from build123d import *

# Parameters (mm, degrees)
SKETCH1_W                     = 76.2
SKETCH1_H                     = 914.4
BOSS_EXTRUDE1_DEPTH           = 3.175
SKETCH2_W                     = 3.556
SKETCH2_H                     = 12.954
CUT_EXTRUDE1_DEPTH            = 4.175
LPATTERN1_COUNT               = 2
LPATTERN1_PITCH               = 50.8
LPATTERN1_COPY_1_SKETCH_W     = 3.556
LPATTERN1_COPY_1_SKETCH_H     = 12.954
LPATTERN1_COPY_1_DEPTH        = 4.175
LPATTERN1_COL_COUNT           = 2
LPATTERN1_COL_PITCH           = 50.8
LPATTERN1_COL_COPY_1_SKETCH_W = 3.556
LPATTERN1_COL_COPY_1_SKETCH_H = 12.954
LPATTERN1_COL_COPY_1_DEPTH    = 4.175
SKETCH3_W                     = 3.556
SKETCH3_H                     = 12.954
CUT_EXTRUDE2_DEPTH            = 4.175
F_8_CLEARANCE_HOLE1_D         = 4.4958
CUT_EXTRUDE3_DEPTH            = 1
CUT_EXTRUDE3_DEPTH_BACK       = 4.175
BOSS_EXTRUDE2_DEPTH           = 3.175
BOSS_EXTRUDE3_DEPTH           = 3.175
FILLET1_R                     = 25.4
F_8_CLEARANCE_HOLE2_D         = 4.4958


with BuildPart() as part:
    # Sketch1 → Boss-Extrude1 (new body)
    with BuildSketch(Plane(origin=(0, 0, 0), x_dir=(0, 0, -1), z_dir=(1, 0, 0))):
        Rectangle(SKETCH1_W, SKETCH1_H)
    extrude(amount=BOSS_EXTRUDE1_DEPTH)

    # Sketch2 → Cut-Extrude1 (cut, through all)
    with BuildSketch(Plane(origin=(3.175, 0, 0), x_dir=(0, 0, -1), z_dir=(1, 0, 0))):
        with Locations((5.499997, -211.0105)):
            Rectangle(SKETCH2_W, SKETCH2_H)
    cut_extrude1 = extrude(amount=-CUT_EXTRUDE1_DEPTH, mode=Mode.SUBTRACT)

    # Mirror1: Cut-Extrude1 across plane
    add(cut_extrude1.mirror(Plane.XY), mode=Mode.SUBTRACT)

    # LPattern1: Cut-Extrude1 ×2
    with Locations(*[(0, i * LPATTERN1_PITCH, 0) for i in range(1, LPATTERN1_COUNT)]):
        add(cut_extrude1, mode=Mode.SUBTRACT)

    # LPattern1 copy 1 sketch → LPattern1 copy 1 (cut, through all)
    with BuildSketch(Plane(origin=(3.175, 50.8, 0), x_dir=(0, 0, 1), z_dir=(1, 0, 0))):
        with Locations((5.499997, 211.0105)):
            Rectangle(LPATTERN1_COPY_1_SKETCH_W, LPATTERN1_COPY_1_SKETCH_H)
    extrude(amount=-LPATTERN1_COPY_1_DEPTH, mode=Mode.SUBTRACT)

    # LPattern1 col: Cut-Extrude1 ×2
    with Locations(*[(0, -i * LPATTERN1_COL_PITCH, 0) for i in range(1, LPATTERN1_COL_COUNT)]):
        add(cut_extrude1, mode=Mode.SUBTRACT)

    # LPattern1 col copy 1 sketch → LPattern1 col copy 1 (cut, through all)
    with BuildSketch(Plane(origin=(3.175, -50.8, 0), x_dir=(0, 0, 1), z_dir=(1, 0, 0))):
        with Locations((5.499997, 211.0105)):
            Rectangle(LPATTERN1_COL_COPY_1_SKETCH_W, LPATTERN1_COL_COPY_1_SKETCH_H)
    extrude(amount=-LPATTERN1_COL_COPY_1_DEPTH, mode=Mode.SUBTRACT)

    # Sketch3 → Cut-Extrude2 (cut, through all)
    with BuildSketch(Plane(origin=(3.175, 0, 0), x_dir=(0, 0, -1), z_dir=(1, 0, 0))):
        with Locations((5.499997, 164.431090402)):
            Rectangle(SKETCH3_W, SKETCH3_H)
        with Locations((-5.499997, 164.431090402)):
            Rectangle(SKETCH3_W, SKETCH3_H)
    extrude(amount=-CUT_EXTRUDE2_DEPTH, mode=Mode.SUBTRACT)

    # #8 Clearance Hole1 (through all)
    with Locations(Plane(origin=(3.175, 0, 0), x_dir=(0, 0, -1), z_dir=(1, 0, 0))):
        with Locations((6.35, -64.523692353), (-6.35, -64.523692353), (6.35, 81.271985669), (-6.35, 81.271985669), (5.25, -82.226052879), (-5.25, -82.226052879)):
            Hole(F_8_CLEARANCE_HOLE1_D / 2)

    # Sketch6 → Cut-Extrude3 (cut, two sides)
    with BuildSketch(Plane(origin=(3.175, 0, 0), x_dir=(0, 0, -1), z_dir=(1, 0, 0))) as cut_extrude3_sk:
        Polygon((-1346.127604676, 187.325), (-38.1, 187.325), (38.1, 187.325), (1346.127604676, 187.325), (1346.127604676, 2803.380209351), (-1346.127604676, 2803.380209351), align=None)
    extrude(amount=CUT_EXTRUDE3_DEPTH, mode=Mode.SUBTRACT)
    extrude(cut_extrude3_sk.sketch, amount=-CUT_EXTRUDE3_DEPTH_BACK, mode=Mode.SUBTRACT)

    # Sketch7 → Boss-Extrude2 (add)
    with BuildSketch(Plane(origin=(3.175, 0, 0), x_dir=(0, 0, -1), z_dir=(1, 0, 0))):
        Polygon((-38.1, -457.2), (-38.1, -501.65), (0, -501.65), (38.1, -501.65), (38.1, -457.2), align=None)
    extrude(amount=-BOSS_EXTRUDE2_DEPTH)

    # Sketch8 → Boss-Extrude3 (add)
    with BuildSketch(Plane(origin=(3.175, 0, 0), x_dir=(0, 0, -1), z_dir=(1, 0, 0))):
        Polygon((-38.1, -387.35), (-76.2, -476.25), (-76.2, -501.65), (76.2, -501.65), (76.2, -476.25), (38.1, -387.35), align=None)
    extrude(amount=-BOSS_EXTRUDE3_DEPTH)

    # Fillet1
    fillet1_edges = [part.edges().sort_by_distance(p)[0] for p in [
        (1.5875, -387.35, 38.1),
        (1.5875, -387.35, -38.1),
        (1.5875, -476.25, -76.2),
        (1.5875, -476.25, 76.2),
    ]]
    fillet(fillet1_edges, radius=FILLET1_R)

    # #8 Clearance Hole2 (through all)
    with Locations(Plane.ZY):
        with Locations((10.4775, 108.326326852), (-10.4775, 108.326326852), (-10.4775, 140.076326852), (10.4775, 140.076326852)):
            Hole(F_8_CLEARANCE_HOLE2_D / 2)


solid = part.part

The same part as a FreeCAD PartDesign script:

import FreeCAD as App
import Part
import Sketcher
Q = App.Units.Quantity


def edges_at(feature, points):
    """Names of the edges that pass closest to the given points."""
    edges = feature.Shape.Edges
    near = lambda p: min(range(len(edges)), key=lambda i: edges[i].distToShape(Part.Vertex(*p))[0])
    return sorted({f"Edge{near(p) + 1}" for p in points})

doc = App.newDocument("Part")
body = doc.addObject("PartDesign::Body", "Body")

sketch1 = doc.addObject("Sketcher::SketchObject", "Sketch")
body.addObject(sketch1)
sketch1.AttachmentSupport = (doc.YZ_Plane, [""])
sketch1.MapMode = "FlatFace"
sketch1.addGeometry([
    Part.LineSegment(App.Vector(457.2, 38.1, 0), App.Vector(-457.2, 38.1, 0)),
    Part.LineSegment(App.Vector(-457.2, 38.1, 0), App.Vector(-457.2, -38.1, 0)),
    Part.LineSegment(App.Vector(-457.2, -38.1, 0), App.Vector(457.2, -38.1, 0)),
    Part.LineSegment(App.Vector(457.2, -38.1, 0), App.Vector(457.2, 38.1, 0)),
], False)
sketch1.addConstraint([
    Sketcher.Constraint("Coincident", 0, 2, 1, 1),
    Sketcher.Constraint("Coincident", 1, 2, 2, 1),
    Sketcher.Constraint("Coincident", 2, 2, 3, 1),
    Sketcher.Constraint("Coincident", 3, 2, 0, 1),
    Sketcher.Constraint("Horizontal", 0),
    Sketcher.Constraint("Vertical", 1),
    Sketcher.Constraint("Horizontal", 2),
    Sketcher.Constraint("Vertical", 3),
    Sketcher.Constraint("Symmetric", 0, 2, 2, 2, -1, 1),
    Sketcher.Constraint("DistanceX", 0, 2, 0, 1, Q("36 in")),
    Sketcher.Constraint("DistanceY", 1, 2, 1, 1, Q("3 in")),
])
pad1 = doc.addObject("PartDesign::Pad", "Pad")
body.addObject(pad1)
pad1.Profile = sketch1
pad1.Length = Q("0.125 in")

sketch2 = doc.addObject("Sketcher::SketchObject", "Sketch001")
body.addObject(sketch2)
sketch2.AttachmentSupport = (doc.YZ_Plane, [""])
sketch2.MapMode = "FlatFace"
sketch2.AttachmentOffset = App.Placement(App.Vector(0, 0, 0.125 * 25.4), App.Rotation())
sketch2.addGeometry([
    Part.LineSegment(App.Vector(-204.5335, -3.721997, 0), App.Vector(-217.4875, -3.721997, 0)),
    Part.LineSegment(App.Vector(-217.4875, -3.721997, 0), App.Vector(-217.4875, -7.277997, 0)),
    Part.LineSegment(App.Vector(-217.4875, -7.277997, 0), App.Vector(-204.5335, -7.277997, 0)),
    Part.LineSegment(App.Vector(-204.5335, -7.277997, 0), App.Vector(-204.5335, -3.721997, 0)),
], False)
sketch2.addConstraint([
    Sketcher.Constraint("Coincident", 0, 2, 1, 1),
    Sketcher.Constraint("Coincident", 1, 2, 2, 1),
    Sketcher.Constraint("Coincident", 2, 2, 3, 1),
    Sketcher.Constraint("Coincident", 3, 2, 0, 1),
    Sketcher.Constraint("Horizontal", 0),
    Sketcher.Constraint("Vertical", 1),
    Sketcher.Constraint("Horizontal", 2),
    Sketcher.Constraint("Vertical", 3),
    Sketcher.Constraint("DistanceX", 0, 2, 0, 1, Q("0.51 in")),
    Sketcher.Constraint("DistanceY", 1, 2, 1, 1, Q("0.14 in")),
    Sketcher.Constraint("DistanceX", 0, 2, -1, 1, Q("8.5625 in")),
    Sketcher.Constraint("DistanceY", 0, 2, -1, 1, 3.721997),
])
pocket1 = doc.addObject("PartDesign::Pocket", "Pocket")
body.addObject(pocket1)
pocket1.Profile = sketch2
pocket1.Type = "ThroughAll"
doc.recompute()

mirrored = doc.addObject("PartDesign::Mirrored", "Mirrored")
body.addObject(mirrored)
mirrored.Originals = [pocket1]
mirrored.MirrorPlane = (doc.XY_Plane, [""])
body.Tip = mirrored
doc.recompute()

linearpattern = doc.addObject("PartDesign::LinearPattern", "LinearPattern")
body.addObject(linearpattern)
linearpattern.Originals = [pocket1]
linearpattern.Direction = (doc.Y_Axis, [""])
linearpattern.Mode = "offset"
linearpattern.Offset = Q("2 in")
linearpattern.Occurrences = 2
body.Tip = linearpattern

sketch3 = doc.addObject("Sketcher::SketchObject", "Sketch002")
body.addObject(sketch3)
sketch3.AttachmentSupport = (doc.YZ_Plane, [""])
sketch3.MapMode = "FlatFace"
sketch3.AttachmentOffset = App.Placement(App.Vector(0, 0, 0.125 * 25.4), App.Rotation())
sketch3.addGeometry([
    Part.LineSegment(App.Vector(-166.6875, 3.721997, 0), App.Vector(-153.7335, 3.721997, 0)),
    Part.LineSegment(App.Vector(-153.7335, 3.721997, 0), App.Vector(-153.7335, 7.277997, 0)),
    Part.LineSegment(App.Vector(-153.7335, 7.277997, 0), App.Vector(-166.6875, 7.277997, 0)),
    Part.LineSegment(App.Vector(-166.6875, 7.277997, 0), App.Vector(-166.6875, 3.721997, 0)),
], False)
sketch3.addConstraint([
    Sketcher.Constraint("Coincident", 0, 2, 1, 1),
    Sketcher.Constraint("Coincident", 1, 2, 2, 1),
    Sketcher.Constraint("Coincident", 2, 2, 3, 1),
    Sketcher.Constraint("Coincident", 3, 2, 0, 1),
    Sketcher.Constraint("Horizontal", 0),
    Sketcher.Constraint("Vertical", 1),
    Sketcher.Constraint("Horizontal", 2),
    Sketcher.Constraint("Vertical", 3),
    Sketcher.Constraint("DistanceX", 0, 1, 0, 2, Q("0.51 in")),
    Sketcher.Constraint("DistanceY", 1, 1, 1, 2, Q("0.14 in")),
    Sketcher.Constraint("DistanceX", 2, 2, -1, 1, Q("6.5625 in")),
    Sketcher.Constraint("DistanceY", -1, 1, 0, 2, 3.721997),
])
pocket2 = doc.addObject("PartDesign::Pocket", "Pocket001")
body.addObject(pocket2)
pocket2.Profile = sketch3
pocket2.Type = "ThroughAll"
doc.recompute()

linearpattern2 = doc.addObject("PartDesign::LinearPattern", "LinearPattern001")
body.addObject(linearpattern2)
linearpattern2.Originals = [pocket1]
linearpattern2.Direction = (doc.Y_Axis, [""])
linearpattern2.Mode = "offset"
linearpattern2.Offset = Q("2 in")
linearpattern2.Occurrences = 2
linearpattern2.Reversed = True
body.Tip = linearpattern2

sketch4 = doc.addObject("Sketcher::SketchObject", "Sketch003")
body.addObject(sketch4)
sketch4.AttachmentSupport = (doc.YZ_Plane, [""])
sketch4.MapMode = "FlatFace"
sketch4.AttachmentOffset = App.Placement(App.Vector(0, 0, 0.125 * 25.4), App.Rotation())
sketch4.addGeometry([
    Part.LineSegment(App.Vector(-268.2875, 3.721997, 0), App.Vector(-255.3335, 3.721997, 0)),
    Part.LineSegment(App.Vector(-255.3335, 3.721997, 0), App.Vector(-255.3335, 7.277997, 0)),
    Part.LineSegment(App.Vector(-255.3335, 7.277997, 0), App.Vector(-268.2875, 7.277997, 0)),
    Part.LineSegment(App.Vector(-268.2875, 7.277997, 0), App.Vector(-268.2875, 3.721997, 0)),
], False)
sketch4.addConstraint([
    Sketcher.Constraint("Coincident", 0, 2, 1, 1),
    Sketcher.Constraint("Coincident", 1, 2, 2, 1),
    Sketcher.Constraint("Coincident", 2, 2, 3, 1),
    Sketcher.Constraint("Coincident", 3, 2, 0, 1),
    Sketcher.Constraint("Horizontal", 0),
    Sketcher.Constraint("Vertical", 1),
    Sketcher.Constraint("Horizontal", 2),
    Sketcher.Constraint("Vertical", 3),
    Sketcher.Constraint("DistanceX", 0, 1, 0, 2, Q("0.51 in")),
    Sketcher.Constraint("DistanceY", 1, 1, 1, 2, Q("0.14 in")),
    Sketcher.Constraint("DistanceX", 2, 2, -1, 1, Q("10.5625 in")),
    Sketcher.Constraint("DistanceY", -1, 1, 0, 2, 3.721997),
])
pocket3 = doc.addObject("PartDesign::Pocket", "Pocket002")
body.addObject(pocket3)
pocket3.Profile = sketch4
pocket3.Type = "ThroughAll"

sketch5 = doc.addObject("Sketcher::SketchObject", "Sketch004")
body.addObject(sketch5)
sketch5.AttachmentSupport = (doc.YZ_Plane, [""])
sketch5.MapMode = "FlatFace"
sketch5.AttachmentOffset = App.Placement(App.Vector(0, 0, 0.125 * 25.4), App.Rotation())
sketch5.addGeometry([
    Part.LineSegment(App.Vector(170.90809, -3.721997, 0), App.Vector(157.95409, -3.721997, 0)),
    Part.LineSegment(App.Vector(157.95409, -3.721997, 0), App.Vector(157.95409, -7.277997, 0)),
    Part.LineSegment(App.Vector(157.95409, -7.277997, 0), App.Vector(170.90809, -7.277997, 0)),
    Part.LineSegment(App.Vector(170.90809, -7.277997, 0), App.Vector(170.90809, -3.721997, 0)),
    Part.LineSegment(App.Vector(170.90809, 7.277997, 0), App.Vector(157.95409, 7.277997, 0)),
    Part.LineSegment(App.Vector(157.95409, 7.277997, 0), App.Vector(157.95409, 3.721997, 0)),
    Part.LineSegment(App.Vector(157.95409, 3.721997, 0), App.Vector(170.90809, 3.721997, 0)),
    Part.LineSegment(App.Vector(170.90809, 3.721997, 0), App.Vector(170.90809, 7.277997, 0)),
], False)
sketch5.addConstraint([
    Sketcher.Constraint("Coincident", 0, 2, 1, 1),
    Sketcher.Constraint("Coincident", 1, 2, 2, 1),
    Sketcher.Constraint("Coincident", 2, 2, 3, 1),
    Sketcher.Constraint("Coincident", 3, 2, 0, 1),
    Sketcher.Constraint("Coincident", 4, 2, 5, 1),
    Sketcher.Constraint("Coincident", 5, 2, 6, 1),
    Sketcher.Constraint("Coincident", 6, 2, 7, 1),
    Sketcher.Constraint("Coincident", 7, 2, 4, 1),
    Sketcher.Constraint("Horizontal", 0),
    Sketcher.Constraint("Vertical", 1),
    Sketcher.Constraint("Horizontal", 2),
    Sketcher.Constraint("Vertical", 3),
    Sketcher.Constraint("Horizontal", 4),
    Sketcher.Constraint("Vertical", 5),
    Sketcher.Constraint("Horizontal", 6),
    Sketcher.Constraint("Vertical", 7),
    Sketcher.Constraint("Symmetric", 1, 2, 4, 2, -1),
    Sketcher.Constraint("Symmetric", 3, 2, 6, 2, -1),
    Sketcher.Constraint("DistanceX", 0, 2, 0, 1, Q("0.51 in")),
    Sketcher.Constraint("DistanceY", 1, 2, 1, 1, Q("0.14 in")),
    Sketcher.Constraint("DistanceX", -1, 1, 0, 2, 157.95409),
    Sketcher.Constraint("DistanceY", 0, 2, -1, 1, 3.721997),
])
pocket4 = doc.addObject("PartDesign::Pocket", "Pocket003")
body.addObject(pocket4)
pocket4.Profile = sketch5
pocket4.Type = "ThroughAll"

sketch6 = doc.addObject("Sketcher::SketchObject", "Sketch005")
body.addObject(sketch6)
sketch6.AttachmentSupport = (doc.YZ_Plane, [""])
sketch6.MapMode = "FlatFace"
sketch6.AttachmentOffset = App.Placement(App.Vector(0, 0, 0.125 * 25.4), App.Rotation())
sketch6.addGeometry([
    Part.Circle(App.Vector(-64.523692, -6.35, 0), App.Vector(0, 0, 1), 2.2479),
    Part.Circle(App.Vector(-64.523692, 6.35, 0), App.Vector(0, 0, 1), 2.2479),
    Part.Circle(App.Vector(81.271986, -6.35, 0), App.Vector(0, 0, 1), 2.2479),
    Part.Circle(App.Vector(81.271986, 6.35, 0), App.Vector(0, 0, 1), 2.2479),
    Part.Circle(App.Vector(-82.226053, -5.25, 0), App.Vector(0, 0, 1), 2.2479),
    Part.Circle(App.Vector(-82.226053, 5.25, 0), App.Vector(0, 0, 1), 2.2479),
], False)
sketch6.addConstraint([
    Sketcher.Constraint("Equal", 0, 1),
    Sketcher.Constraint("Equal", 1, 2),
    Sketcher.Constraint("Equal", 2, 3),
    Sketcher.Constraint("Equal", 3, 4),
    Sketcher.Constraint("Equal", 4, 5),
    Sketcher.Constraint("Symmetric", 0, 3, 1, 3, -1),
    Sketcher.Constraint("Symmetric", 2, 3, 3, 3, -1),
    Sketcher.Constraint("Symmetric", 4, 3, 5, 3, -1),
    Sketcher.Constraint("Horizontal", 0, 3, 2, 3),
    Sketcher.Constraint("Diameter", 0, Q("0.177 in")),
    Sketcher.Constraint("DistanceY", 0, 3, 1, 3, Q("0.5 in")),
    Sketcher.Constraint("DistanceY", 4, 3, -1, 1, 5.25),
    Sketcher.Constraint("DistanceX", 0, 3, 2, 3, 145.795678),
    Sketcher.Constraint("DistanceX", 4, 3, 0, 3, 17.702361),
    Sketcher.Constraint("DistanceX", 0, 3, -1, 1, 64.523692),
])
doc.recompute()
hole = doc.addObject("PartDesign::Hole", "Hole")
body.addObject(hole)
hole.Profile = sketch6
hole.ThreadType = "None"
hole.Diameter = Q("0.177 in")
hole.DepthType = "ThroughAll"

sketch7 = doc.addObject("Sketcher::SketchObject", "Sketch006")
body.addObject(sketch7)
sketch7.AttachmentSupport = (doc.YZ_Plane, [""])
sketch7.MapMode = "FlatFace"
sketch7.AttachmentOffset = App.Placement(App.Vector(0, 0, 0.125 * 25.4), App.Rotation())
sketch7.addGeometry([
    Part.LineSegment(App.Vector(187.325, 1346.127605, 0), App.Vector(187.325, -1346.127605, 0)),
    Part.LineSegment(App.Vector(187.325, -1346.127605, 0), App.Vector(2803.380209, -1346.127605, 0)),
    Part.LineSegment(App.Vector(2803.380209, -1346.127605, 0), App.Vector(2803.380209, 1346.127605, 0)),
    Part.LineSegment(App.Vector(2803.380209, 1346.127605, 0), App.Vector(187.325, 1346.127605, 0)),
], False)
sketch7.addConstraint([
    Sketcher.Constraint("Coincident", 0, 2, 1, 1),
    Sketcher.Constraint("Coincident", 1, 2, 2, 1),
    Sketcher.Constraint("Coincident", 2, 2, 3, 1),
    Sketcher.Constraint("Coincident", 3, 2, 0, 1),
    Sketcher.Constraint("Vertical", 0),
    Sketcher.Constraint("Horizontal", 1),
    Sketcher.Constraint("Vertical", 2),
    Sketcher.Constraint("Horizontal", 3),
    Sketcher.Constraint("DistanceX", -1, 1, 0, 2, Q("7.375 in")),
    Sketcher.Constraint("DistanceX", 1, 1, 1, 2, 2616.055209),
    Sketcher.Constraint("DistanceY", 0, 2, 0, 1, 2692.255209),
    Sketcher.Constraint("DistanceY", 0, 2, -1, 1, 1346.127605),
])
pocket5 = doc.addObject("PartDesign::Pocket", "Pocket004")
body.addObject(pocket5)
pocket5.Profile = sketch7
pocket5.Type = "ThroughAll"
pocket5.Midplane = True

sketch8 = doc.addObject("Sketcher::SketchObject", "Sketch007")
body.addObject(sketch8)
sketch8.AttachmentSupport = (doc.YZ_Plane, [""])
sketch8.MapMode = "FlatFace"
sketch8.AttachmentOffset = App.Placement(App.Vector(0, 0, 0.125 * 25.4), App.Rotation())
sketch8.addGeometry([
    Part.LineSegment(App.Vector(-457.2, 38.1, 0), App.Vector(-501.65, 38.1, 0)),
    Part.LineSegment(App.Vector(-501.65, 38.1, 0), App.Vector(-501.65, -38.1, 0)),
    Part.LineSegment(App.Vector(-501.65, -38.1, 0), App.Vector(-457.2, -38.1, 0)),
    Part.LineSegment(App.Vector(-457.2, -38.1, 0), App.Vector(-457.2, 38.1, 0)),
], False)
sketch8.addConstraint([
    Sketcher.Constraint("Coincident", 0, 2, 1, 1),
    Sketcher.Constraint("Coincident", 1, 2, 2, 1),
    Sketcher.Constraint("Coincident", 2, 2, 3, 1),
    Sketcher.Constraint("Coincident", 3, 2, 0, 1),
    Sketcher.Constraint("Horizontal", 0),
    Sketcher.Constraint("Vertical", 1),
    Sketcher.Constraint("Horizontal", 2),
    Sketcher.Constraint("Vertical", 3),
    Sketcher.Constraint("DistanceY", 1, 2, 1, 1, Q("3 in")),
    Sketcher.Constraint("DistanceX", 2, 2, -1, 1, Q("18 in")),
    Sketcher.Constraint("DistanceX", 0, 2, 0, 1, Q("1.75 in")),
    Sketcher.Constraint("DistanceY", -1, 1, 0, 2, Q("1.5 in")),
])
pad2 = doc.addObject("PartDesign::Pad", "Pad001")
body.addObject(pad2)
pad2.Profile = sketch8
pad2.Length = Q("0.125 in")
pad2.Reversed = True

sketch9 = doc.addObject("Sketcher::SketchObject", "Sketch008")
body.addObject(sketch9)
sketch9.AttachmentSupport = (doc.YZ_Plane, [""])
sketch9.MapMode = "FlatFace"
sketch9.AttachmentOffset = App.Placement(App.Vector(0, 0, 0.125 * 25.4), App.Rotation())
sketch9.addGeometry([
    Part.LineSegment(App.Vector(-387.35, 38.1, 0), App.Vector(-476.25, 76.2, 0)),
    Part.LineSegment(App.Vector(-476.25, 76.2, 0), App.Vector(-501.65, 76.2, 0)),
    Part.LineSegment(App.Vector(-501.65, 76.2, 0), App.Vector(-501.65, -76.2, 0)),
    Part.LineSegment(App.Vector(-501.65, -76.2, 0), App.Vector(-476.25, -76.2, 0)),
    Part.LineSegment(App.Vector(-476.25, -76.2, 0), App.Vector(-387.35, -38.1, 0)),
    Part.LineSegment(App.Vector(-387.35, -38.1, 0), App.Vector(-387.35, 38.1, 0)),
], False)
sketch9.addConstraint([
    Sketcher.Constraint("Coincident", 0, 2, 1, 1),
    Sketcher.Constraint("Coincident", 1, 2, 2, 1),
    Sketcher.Constraint("Coincident", 2, 2, 3, 1),
    Sketcher.Constraint("Coincident", 3, 2, 4, 1),
    Sketcher.Constraint("Coincident", 4, 2, 5, 1),
    Sketcher.Constraint("Coincident", 5, 2, 0, 1),
    Sketcher.Constraint("Horizontal", 1),
    Sketcher.Constraint("Vertical", 2),
    Sketcher.Constraint("Horizontal", 3),
    Sketcher.Constraint("Vertical", 5),
    Sketcher.Constraint("Symmetric", 0, 2, 3, 2, -1),
    Sketcher.Constraint("Equal", 0, 4),
    Sketcher.Constraint("DistanceX", 1, 2, 1, 1, Q("1 in")),
    Sketcher.Constraint("DistanceY", 2, 2, 2, 1, Q("6 in")),
    Sketcher.Constraint("DistanceY", 5, 1, 5, 2, Q("3 in")),
    Sketcher.Constraint("DistanceX", 3, 2, 4, 2, Q("3.5 in")),
    Sketcher.Constraint("DistanceX", 0, 2, -1, 1, Q("18.75 in")),
])
pad3 = doc.addObject("PartDesign::Pad", "Pad002")
body.addObject(pad3)
pad3.Profile = sketch9
pad3.Length = Q("0.125 in")
pad3.Reversed = True
doc.recompute()

fillet = doc.addObject("PartDesign::Fillet", "Fillet")
body.addObject(fillet)
fillet.Base = (pad3, edges_at(pad3, [
    (1.587, -387.35, 38.1),
    (1.587, -387.35, -38.1),
    (1.587, -476.25, -76.2),
    (1.587, -476.25, 76.2),
]))
fillet.Radius = Q("1 in")

sketch10 = doc.addObject("Sketcher::SketchObject", "Sketch009")
body.addObject(sketch10)
sketch10.AttachmentSupport = (doc.YZ_Plane, [""])
sketch10.MapMode = "FlatFace"
sketch10.addGeometry([
    Part.Circle(App.Vector(108.326327, 10.4775, 0), App.Vector(0, 0, 1), 2.2479),
    Part.Circle(App.Vector(108.326327, -10.4775, 0), App.Vector(0, 0, 1), 2.2479),
    Part.Circle(App.Vector(140.076327, -10.4775, 0), App.Vector(0, 0, 1), 2.2479),
    Part.Circle(App.Vector(140.076327, 10.4775, 0), App.Vector(0, 0, 1), 2.2479),
], False)
sketch10.addConstraint([
    Sketcher.Constraint("Equal", 0, 1),
    Sketcher.Constraint("Equal", 1, 2),
    Sketcher.Constraint("Equal", 2, 3),
    Sketcher.Constraint("Symmetric", 0, 3, 1, 3, -1),
    Sketcher.Constraint("Symmetric", 2, 3, 3, 3, -1),
    Sketcher.Constraint("Horizontal", 1, 3, 2, 3),
    Sketcher.Constraint("Diameter", 0, Q("0.177 in")),
    Sketcher.Constraint("DistanceX", 1, 3, 2, 3, Q("1.25 in")),
    Sketcher.Constraint("DistanceY", 1, 3, 0, 3, Q("0.825 in")),
    Sketcher.Constraint("DistanceX", -1, 1, 0, 3, 108.326327),
])
doc.recompute()
hole2 = doc.addObject("PartDesign::Hole", "Hole001")
body.addObject(hole2)
hole2.Profile = sketch10
hole2.ThreadType = "None"
hole2.Diameter = Q("0.177 in")
hole2.DepthType = "ThroughAll"
hole2.Reversed = True

doc.recompute()
